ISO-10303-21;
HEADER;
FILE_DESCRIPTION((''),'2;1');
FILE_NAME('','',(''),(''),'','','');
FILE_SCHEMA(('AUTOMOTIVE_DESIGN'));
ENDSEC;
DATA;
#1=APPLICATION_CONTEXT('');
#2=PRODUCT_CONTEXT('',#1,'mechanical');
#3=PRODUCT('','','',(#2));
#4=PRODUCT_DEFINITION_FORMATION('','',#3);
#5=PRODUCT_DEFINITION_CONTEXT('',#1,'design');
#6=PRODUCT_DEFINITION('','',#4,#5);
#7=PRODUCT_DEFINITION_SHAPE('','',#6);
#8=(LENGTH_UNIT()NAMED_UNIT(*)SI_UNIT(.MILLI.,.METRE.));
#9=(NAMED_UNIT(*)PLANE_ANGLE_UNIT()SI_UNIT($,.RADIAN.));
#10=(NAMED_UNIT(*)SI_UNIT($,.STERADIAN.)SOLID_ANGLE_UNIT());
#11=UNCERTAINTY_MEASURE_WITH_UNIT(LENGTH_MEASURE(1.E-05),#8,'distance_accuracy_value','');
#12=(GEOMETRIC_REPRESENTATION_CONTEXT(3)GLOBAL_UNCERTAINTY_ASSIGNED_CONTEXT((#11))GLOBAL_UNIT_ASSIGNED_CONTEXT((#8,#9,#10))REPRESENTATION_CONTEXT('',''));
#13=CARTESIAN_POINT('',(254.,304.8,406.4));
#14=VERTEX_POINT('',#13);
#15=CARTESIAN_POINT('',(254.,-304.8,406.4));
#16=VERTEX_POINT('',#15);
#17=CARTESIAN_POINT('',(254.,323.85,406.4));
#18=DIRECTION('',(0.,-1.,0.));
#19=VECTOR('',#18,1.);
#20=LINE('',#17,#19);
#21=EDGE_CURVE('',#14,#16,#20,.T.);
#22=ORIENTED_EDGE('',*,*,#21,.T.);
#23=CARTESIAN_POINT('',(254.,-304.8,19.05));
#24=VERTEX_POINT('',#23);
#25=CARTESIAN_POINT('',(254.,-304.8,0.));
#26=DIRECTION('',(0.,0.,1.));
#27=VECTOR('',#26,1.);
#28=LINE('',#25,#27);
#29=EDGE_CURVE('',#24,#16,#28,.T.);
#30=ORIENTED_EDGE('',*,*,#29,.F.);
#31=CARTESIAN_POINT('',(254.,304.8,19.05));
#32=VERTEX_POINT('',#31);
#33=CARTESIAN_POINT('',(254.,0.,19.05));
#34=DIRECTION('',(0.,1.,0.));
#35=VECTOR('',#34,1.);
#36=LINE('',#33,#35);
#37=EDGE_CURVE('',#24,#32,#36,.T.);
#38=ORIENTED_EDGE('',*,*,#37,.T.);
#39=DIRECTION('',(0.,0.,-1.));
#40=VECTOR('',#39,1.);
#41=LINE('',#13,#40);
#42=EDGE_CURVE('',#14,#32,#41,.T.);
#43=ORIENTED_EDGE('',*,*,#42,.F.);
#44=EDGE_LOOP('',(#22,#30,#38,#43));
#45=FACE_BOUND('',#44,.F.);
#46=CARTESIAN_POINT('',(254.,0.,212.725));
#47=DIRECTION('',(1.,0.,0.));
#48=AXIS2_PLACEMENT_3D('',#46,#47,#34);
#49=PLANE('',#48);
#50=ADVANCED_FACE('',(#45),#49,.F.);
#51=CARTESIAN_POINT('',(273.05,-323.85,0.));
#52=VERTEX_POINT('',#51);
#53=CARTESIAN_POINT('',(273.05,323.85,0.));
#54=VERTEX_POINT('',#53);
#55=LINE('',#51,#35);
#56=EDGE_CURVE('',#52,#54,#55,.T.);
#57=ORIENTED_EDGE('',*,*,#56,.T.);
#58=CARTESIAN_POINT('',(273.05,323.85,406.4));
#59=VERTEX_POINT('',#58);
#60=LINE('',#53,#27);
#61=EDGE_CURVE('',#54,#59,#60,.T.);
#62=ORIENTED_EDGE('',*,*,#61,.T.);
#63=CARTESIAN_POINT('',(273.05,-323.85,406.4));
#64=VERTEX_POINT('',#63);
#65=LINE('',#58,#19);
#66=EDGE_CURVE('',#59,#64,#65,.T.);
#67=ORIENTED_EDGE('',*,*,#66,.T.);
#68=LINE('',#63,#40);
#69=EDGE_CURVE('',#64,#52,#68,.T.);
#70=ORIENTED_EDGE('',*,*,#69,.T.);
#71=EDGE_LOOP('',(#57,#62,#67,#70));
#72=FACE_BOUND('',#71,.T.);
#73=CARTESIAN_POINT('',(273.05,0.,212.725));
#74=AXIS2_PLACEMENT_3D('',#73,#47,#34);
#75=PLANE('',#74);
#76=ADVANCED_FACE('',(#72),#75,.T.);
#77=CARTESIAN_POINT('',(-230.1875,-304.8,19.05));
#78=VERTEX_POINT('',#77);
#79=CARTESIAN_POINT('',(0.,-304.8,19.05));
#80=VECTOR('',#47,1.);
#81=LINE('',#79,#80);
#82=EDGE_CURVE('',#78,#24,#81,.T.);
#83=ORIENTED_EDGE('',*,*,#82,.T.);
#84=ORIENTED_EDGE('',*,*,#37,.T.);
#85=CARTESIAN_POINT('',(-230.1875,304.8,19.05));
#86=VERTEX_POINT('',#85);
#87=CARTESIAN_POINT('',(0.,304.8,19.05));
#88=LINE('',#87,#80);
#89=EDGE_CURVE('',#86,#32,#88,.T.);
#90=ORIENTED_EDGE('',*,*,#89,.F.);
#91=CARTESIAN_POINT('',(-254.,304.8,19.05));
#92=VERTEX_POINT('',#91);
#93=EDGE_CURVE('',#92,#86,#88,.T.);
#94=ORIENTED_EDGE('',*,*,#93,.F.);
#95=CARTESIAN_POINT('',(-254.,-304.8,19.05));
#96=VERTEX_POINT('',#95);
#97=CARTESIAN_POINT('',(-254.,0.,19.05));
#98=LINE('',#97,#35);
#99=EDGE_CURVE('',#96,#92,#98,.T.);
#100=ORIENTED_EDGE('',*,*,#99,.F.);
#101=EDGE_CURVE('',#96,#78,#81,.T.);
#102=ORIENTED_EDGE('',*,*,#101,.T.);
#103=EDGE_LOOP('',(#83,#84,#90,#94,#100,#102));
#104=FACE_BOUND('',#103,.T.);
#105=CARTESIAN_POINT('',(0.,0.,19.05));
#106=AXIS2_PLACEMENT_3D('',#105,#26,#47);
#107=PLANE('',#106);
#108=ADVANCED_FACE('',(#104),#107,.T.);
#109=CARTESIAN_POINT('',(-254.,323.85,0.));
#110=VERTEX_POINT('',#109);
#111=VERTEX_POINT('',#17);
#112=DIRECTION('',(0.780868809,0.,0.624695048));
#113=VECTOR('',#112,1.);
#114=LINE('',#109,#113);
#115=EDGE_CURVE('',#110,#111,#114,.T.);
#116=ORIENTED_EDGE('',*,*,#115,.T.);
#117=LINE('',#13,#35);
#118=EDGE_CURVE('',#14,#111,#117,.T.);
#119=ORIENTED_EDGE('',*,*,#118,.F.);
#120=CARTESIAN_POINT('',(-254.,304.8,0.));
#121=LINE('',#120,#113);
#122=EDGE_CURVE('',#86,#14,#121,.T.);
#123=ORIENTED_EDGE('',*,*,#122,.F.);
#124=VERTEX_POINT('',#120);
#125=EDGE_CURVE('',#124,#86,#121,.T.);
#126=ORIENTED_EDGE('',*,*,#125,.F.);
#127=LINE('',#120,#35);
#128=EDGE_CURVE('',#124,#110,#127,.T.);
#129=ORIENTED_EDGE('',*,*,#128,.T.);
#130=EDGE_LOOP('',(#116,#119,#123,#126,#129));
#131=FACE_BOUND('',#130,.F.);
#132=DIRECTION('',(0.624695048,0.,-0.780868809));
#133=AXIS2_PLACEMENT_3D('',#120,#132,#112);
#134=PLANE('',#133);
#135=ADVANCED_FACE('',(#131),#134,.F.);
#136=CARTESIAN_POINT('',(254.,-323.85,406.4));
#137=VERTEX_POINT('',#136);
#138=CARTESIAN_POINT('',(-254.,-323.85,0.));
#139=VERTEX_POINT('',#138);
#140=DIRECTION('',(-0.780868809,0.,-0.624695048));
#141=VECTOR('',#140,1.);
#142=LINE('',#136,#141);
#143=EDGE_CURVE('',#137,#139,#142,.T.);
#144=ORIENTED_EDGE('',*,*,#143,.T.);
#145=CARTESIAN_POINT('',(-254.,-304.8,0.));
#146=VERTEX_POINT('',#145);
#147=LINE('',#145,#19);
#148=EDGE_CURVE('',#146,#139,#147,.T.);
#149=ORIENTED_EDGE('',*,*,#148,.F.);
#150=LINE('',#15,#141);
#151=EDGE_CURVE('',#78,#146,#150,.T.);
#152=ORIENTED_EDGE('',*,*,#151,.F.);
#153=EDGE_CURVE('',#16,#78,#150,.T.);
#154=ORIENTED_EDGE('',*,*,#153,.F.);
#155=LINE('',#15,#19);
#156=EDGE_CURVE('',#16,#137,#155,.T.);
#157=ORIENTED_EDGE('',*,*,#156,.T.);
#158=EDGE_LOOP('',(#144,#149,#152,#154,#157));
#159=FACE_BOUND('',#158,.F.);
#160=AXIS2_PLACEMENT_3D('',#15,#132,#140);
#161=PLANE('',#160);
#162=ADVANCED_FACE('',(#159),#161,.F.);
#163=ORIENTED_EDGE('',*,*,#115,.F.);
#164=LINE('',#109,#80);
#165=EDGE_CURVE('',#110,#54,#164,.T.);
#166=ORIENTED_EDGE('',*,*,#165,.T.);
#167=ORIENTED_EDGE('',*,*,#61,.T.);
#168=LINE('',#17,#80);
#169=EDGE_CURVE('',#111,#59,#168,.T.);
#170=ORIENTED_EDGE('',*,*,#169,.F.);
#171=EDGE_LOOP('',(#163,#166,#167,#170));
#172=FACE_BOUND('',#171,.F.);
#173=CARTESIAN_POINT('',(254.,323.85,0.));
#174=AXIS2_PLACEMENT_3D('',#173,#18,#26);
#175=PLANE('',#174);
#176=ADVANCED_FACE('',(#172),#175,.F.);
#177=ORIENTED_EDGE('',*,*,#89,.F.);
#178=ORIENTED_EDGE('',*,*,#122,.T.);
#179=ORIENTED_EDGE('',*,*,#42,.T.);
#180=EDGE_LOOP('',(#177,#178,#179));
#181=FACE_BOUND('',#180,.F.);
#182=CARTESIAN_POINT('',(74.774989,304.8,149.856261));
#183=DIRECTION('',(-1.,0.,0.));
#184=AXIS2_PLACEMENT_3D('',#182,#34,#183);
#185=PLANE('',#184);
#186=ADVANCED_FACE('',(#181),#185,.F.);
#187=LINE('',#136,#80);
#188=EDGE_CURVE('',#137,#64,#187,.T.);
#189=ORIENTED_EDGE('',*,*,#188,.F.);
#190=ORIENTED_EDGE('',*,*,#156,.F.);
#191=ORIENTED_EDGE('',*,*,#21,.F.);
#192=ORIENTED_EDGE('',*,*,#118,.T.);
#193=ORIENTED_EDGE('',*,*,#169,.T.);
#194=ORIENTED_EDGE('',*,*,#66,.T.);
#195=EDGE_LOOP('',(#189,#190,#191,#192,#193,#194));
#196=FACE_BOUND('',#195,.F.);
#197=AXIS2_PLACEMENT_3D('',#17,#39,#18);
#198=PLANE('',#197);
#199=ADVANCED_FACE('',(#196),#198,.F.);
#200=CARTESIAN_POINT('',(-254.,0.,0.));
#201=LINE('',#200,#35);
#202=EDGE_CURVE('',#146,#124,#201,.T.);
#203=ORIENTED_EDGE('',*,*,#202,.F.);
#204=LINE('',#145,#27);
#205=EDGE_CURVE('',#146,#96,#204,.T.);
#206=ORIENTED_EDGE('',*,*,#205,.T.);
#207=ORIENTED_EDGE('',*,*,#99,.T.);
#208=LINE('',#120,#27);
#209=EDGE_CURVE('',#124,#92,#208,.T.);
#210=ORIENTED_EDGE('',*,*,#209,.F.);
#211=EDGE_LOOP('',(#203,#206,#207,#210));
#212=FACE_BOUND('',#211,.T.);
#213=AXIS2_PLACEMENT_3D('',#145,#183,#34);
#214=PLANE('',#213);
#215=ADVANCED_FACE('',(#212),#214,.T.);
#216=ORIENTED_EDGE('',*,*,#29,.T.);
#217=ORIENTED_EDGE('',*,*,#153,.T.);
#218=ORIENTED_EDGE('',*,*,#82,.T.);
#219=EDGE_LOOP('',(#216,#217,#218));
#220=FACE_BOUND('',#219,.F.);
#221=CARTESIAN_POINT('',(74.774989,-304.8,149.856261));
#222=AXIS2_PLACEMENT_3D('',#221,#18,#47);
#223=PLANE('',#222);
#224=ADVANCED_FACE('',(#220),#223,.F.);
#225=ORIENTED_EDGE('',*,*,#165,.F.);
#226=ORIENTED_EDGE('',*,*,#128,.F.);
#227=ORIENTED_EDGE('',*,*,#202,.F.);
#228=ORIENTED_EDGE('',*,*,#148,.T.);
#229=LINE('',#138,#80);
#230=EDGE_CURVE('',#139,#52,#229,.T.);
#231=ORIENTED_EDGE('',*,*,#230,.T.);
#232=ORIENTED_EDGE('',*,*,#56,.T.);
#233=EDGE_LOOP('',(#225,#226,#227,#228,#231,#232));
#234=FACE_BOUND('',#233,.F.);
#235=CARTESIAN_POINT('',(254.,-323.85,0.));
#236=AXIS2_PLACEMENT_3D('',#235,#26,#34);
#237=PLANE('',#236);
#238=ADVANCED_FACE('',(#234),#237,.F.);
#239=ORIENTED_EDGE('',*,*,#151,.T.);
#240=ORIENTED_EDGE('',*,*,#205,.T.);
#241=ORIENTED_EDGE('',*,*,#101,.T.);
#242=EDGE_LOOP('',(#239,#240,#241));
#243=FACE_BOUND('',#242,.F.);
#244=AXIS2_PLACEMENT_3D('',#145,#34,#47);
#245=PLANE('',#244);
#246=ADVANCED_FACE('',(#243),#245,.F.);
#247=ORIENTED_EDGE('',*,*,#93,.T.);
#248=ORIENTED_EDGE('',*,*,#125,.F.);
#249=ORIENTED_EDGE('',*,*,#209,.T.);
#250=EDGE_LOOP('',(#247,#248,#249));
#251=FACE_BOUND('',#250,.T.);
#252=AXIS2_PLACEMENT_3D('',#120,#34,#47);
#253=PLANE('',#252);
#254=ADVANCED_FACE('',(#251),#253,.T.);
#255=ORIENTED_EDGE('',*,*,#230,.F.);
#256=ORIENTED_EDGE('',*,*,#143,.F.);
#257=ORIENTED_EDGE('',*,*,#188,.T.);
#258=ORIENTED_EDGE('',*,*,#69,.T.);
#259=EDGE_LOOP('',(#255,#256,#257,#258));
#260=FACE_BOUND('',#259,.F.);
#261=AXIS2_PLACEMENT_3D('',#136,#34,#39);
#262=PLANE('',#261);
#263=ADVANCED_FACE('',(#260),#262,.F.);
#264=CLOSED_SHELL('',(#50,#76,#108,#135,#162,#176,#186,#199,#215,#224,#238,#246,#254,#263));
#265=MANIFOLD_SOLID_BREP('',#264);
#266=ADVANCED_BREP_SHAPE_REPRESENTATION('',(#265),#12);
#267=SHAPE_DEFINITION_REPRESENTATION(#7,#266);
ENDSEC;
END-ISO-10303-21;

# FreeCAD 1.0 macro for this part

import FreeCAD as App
import Part
import Sketcher
Q = App.Units.Quantity


def add_polygon(sketch, points):
    """Adds a closed chain of lines whose ends are joined by coincident constraints."""
    first, n = sketch.GeometryCount, len(points)
    for a, b in zip(points, points[1:] + points[:1]):
        sketch.addGeometry(Part.LineSegment(App.Vector(*a, 0), App.Vector(*b, 0)), False)
    for i in range(n):
        sketch.addConstraint(Sketcher.Constraint("Coincident", first + i, 2, first + (i + 1) % n, 1))

doc = App.newDocument("Part")
body = doc.addObject("PartDesign::Body", "Body")

sketch1 = body.newObject("Sketcher::SketchObject", "Sketch")
sketch1.AttachmentSupport = (doc.getObject("XY_Plane"), [""])
sketch1.MapMode = "FlatFace"
add_polygon(sketch1, [(-254, 305), (-254, -305), (254, -305), (254, 305)])
sketch1.addConstraint([
    Sketcher.Constraint("Vertical", 0),
    Sketcher.Constraint("Horizontal", 1),
    Sketcher.Constraint("Vertical", 2),
    Sketcher.Constraint("Horizontal", 3),
    Sketcher.Constraint("Symmetric", 0, 2, 2, 2, -1, 1),
    Sketcher.Constraint("DistanceX", 1, 1, 1, 2, Q("20 in")),
    Sketcher.Constraint("DistanceY", 0, 2, 0, 1, Q("24 in")),
])
pad1 = body.newObject("PartDesign::Pad", "Pad")
pad1.Profile = sketch1
pad1.Length = Q("0.75 in")

sketch2 = body.newObject("Sketcher::SketchObject", "Sketch001")
sketch2.AttachmentSupport = (doc.getObject("XZ_Plane"), [""])
sketch2.MapMode = "FlatFace"
sketch2.AttachmentOffset = App.Placement(App.Vector(0, 0, 12 * 25.4), App.Rotation())
add_polygon(sketch2, [(254, 406), (-254, 0), (254, 0)])
sketch2.addConstraint([
    Sketcher.Constraint("Horizontal", 1),
    Sketcher.Constraint("Vertical", 2),
    Sketcher.Constraint("Symmetric", 0, 2, 1, 2, -1, 1),
    Sketcher.Constraint("DistanceX", 1, 1, 1, 2, Q("20 in")),
    Sketcher.Constraint("DistanceY", 2, 1, 2, 2, Q("16 in")),
])
pad2 = body.newObject("PartDesign::Pad", "Pad001")
pad2.Profile = sketch2
pad2.Length = Q("0.75 in")

sketch3 = body.newObject("Sketcher::SketchObject", "Sketch002")
sketch3.AttachmentSupport = (doc.getObject("XZ_Plane"), [""])
sketch3.MapMode = "FlatFace"
sketch3.AttachmentOffset = App.Placement(App.Vector(0, 0, -12 * 25.4), App.Rotation())
add_polygon(sketch3, [(254, 406), (254, 0), (-254, 0)])
sketch3.addConstraint([
    Sketcher.Constraint("Vertical", 0),
    Sketcher.Constraint("Horizontal", 1),
    Sketcher.Constraint("Symmetric", 0, 2, 1, 2, -1, 1),
    Sketcher.Constraint("DistanceX", 1, 2, 1, 1, Q("20 in")),
    Sketcher.Constraint("DistanceY", 0, 2, 0, 1, Q("16 in")),
])
pad3 = body.newObject("PartDesign::Pad", "Pad002")
pad3.Profile = sketch3
pad3.Length = Q("0.75 in")
pad3.Reversed = True

sketch4 = body.newObject("Sketcher::SketchObject", "Sketch003")
sketch4.AttachmentSupport = (doc.getObject("YZ_Plane"), [""])
sketch4.MapMode = "FlatFace"
sketch4.AttachmentOffset = App.Placement(App.Vector(0, 0, 10 * 25.4), App.Rotation())
add_polygon(sketch4, [(-324, 406), (-324, 0), (324, 0), (324, 406)])
sketch4.addConstraint([
    Sketcher.Constraint("Vertical", 0),
    Sketcher.Constraint("Horizontal", 1),
    Sketcher.Constraint("Vertical", 2),
    Sketcher.Constraint("Horizontal", 3),
    Sketcher.Constraint("Symmetric", 0, 2, 1, 2, -1, 1),
    Sketcher.Constraint("DistanceY", 0, 2, 0, 1, Q("16 in")),
    Sketcher.Constraint("DistanceX", 1, 1, 1, 2, Q("25.5 in")),
])
pad4 = body.newObject("PartDesign::Pad", "Pad003")
pad4.Profile = sketch4
pad4.Length = Q("0.75 in")

doc.recompute()
